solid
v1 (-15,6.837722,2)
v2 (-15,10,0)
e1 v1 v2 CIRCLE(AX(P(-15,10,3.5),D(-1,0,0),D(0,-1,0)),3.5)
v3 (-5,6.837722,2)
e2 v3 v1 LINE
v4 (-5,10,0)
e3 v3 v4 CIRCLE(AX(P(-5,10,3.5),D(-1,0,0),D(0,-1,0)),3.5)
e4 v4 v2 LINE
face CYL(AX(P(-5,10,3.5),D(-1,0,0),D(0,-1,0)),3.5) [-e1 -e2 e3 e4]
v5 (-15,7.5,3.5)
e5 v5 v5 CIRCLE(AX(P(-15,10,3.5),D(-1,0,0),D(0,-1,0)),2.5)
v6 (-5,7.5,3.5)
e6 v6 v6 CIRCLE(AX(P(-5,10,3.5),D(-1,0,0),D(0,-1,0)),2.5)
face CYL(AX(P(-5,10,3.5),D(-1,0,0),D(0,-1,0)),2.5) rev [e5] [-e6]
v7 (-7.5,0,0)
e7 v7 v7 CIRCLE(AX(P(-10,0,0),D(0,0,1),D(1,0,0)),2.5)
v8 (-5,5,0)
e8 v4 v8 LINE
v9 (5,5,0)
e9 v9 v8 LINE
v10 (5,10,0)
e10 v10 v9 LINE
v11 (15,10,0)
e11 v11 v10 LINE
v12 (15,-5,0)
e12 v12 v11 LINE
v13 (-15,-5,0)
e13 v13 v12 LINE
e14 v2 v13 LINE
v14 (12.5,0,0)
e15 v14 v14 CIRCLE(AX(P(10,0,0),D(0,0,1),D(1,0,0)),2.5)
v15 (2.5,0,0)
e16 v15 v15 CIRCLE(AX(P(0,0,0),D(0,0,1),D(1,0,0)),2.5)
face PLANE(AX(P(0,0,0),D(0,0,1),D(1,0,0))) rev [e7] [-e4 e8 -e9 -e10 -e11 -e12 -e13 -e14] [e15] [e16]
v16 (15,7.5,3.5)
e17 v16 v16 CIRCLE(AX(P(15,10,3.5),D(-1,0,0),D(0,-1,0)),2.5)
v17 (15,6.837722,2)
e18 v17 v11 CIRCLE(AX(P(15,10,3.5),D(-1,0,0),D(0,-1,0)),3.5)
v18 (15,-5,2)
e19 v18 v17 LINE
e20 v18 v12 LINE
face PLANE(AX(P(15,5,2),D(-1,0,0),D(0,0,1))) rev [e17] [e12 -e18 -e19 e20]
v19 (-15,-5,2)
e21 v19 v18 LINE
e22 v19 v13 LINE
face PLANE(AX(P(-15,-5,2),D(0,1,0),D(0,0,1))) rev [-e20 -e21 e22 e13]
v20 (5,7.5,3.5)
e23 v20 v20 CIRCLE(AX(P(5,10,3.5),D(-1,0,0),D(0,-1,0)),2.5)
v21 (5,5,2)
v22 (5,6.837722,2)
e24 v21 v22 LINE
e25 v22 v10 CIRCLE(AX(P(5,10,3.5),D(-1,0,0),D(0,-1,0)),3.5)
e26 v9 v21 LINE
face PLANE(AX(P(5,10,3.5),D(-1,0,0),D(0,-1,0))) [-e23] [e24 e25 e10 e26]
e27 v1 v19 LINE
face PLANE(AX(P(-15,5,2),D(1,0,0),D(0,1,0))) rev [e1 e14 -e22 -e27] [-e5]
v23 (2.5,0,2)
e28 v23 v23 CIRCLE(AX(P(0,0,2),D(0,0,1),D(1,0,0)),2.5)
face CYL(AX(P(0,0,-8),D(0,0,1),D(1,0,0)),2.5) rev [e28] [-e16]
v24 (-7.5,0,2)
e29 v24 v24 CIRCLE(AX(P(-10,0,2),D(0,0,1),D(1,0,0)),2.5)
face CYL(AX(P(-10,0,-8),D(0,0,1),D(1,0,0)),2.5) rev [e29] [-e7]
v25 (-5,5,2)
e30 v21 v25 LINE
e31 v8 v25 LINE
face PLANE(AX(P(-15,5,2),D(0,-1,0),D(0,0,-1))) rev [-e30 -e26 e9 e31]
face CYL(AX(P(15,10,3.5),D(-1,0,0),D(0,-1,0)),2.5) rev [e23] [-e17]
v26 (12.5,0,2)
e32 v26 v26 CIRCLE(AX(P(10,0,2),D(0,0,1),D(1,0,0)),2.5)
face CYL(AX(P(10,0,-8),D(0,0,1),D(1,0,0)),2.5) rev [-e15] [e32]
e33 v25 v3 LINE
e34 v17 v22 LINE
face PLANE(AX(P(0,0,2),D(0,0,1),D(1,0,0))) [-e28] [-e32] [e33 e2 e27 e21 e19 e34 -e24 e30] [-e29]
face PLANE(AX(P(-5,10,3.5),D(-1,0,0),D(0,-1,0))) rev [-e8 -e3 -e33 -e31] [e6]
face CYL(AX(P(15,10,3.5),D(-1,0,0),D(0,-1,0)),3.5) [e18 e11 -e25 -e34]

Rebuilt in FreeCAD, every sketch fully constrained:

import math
import FreeCAD as App
import Part
import Sketcher
from FreeCAD import Vector

doc = App.newDocument("Part")
params = doc.addObject("Spreadsheet::Sheet", "Params")
for row, (alias, value) in enumerate([
    ("sketch1_width", "30 mm"),
    ("sketch1_height", "10 mm"),
    ("pad1_length", "2 mm"),
    ("sketch2_diameter", "5 mm"),
    ("sketch2_radius", "3.5 mm"),
    ("sketch2_width", "5 mm"),
    ("sketch2_height", "2 mm"),
    ("pad2_length", "10 mm"),
    ("linearpattern_pitch", "20 mm"),
    ("sketch3_diameter", "5 mm"),
    ("pocket1_length", "10 mm"),
], start=1):
    params.set(f"A{row}", alias)
    params.set(f"B{row}", "=" + value)
    params.setAlias(f"B{row}", alias)

body = doc.addObject("PartDesign::Body", "Body")

sketch1 = body.newObject("Sketcher::SketchObject", "Sketch")
sketch1.AttachmentSupport = (doc.getObject("XY_Plane"), [""])
sketch1.MapMode = "FlatFace"
sketch1.addGeometry([
    Part.LineSegment(Vector(-15, 5, 0), Vector(-15, -5, 0)),
    Part.LineSegment(Vector(-15, -5, 0), Vector(15, -5, 0)),
    Part.LineSegment(Vector(15, -5, 0), Vector(15, 5, 0)),
    Part.LineSegment(Vector(15, 5, 0), Vector(-15, 5, 0)),
], False)
sketch1.addConstraint([
    Sketcher.Constraint("Coincident", 0, 2, 1, 1),
    Sketcher.Constraint("Coincident", 1, 2, 2, 1),
    Sketcher.Constraint("Coincident", 2, 2, 3, 1),
    Sketcher.Constraint("Coincident", 3, 2, 0, 1),
    Sketcher.Constraint("Vertical", 0),
    Sketcher.Constraint("Horizontal", 1),
    Sketcher.Constraint("Vertical", 2),
    Sketcher.Constraint("Horizontal", 3),
    Sketcher.Constraint("Symmetric", 0, 2, 2, 2, -1, 1),
    Sketcher.Constraint("DistanceX", 1, 1, 1, 2, 30.0),
    Sketcher.Constraint("DistanceY", 0, 2, 0, 1, 10.0),
])
sketch1.setExpression("Constraints[9]", "Params.sketch1_width")
sketch1.setExpression("Constraints[10]", "Params.sketch1_height")
pad1 = body.newObject("PartDesign::Pad", "Pad")
pad1.Profile = sketch1
pad1.setExpression("Length", "Params.pad1_length")

sketch2 = body.newObject("Sketcher::SketchObject", "Sketch001")
sketch2.AttachmentSupport = (doc.getObject("YZ_Plane"), [""])
sketch2.MapMode = "FlatFace"
sketch2.AttachmentOffset = App.Placement(Vector(0, 0, -15), App.Rotation())
sketch2.addGeometry([
    Part.LineSegment(Vector(10, 0, 0), Vector(5, 0, 0)),
    Part.LineSegment(Vector(5, 0, 0), Vector(5, 2, 0)),
    Part.LineSegment(Vector(5, 2, 0), Vector(6.8, 2, 0)),
    Part.ArcOfCircle(Part.Circle(Vector(10, 3.5, 0), Vector(0, 0, 1), 3.5), math.radians(-90), math.radians(205)),
    Part.Circle(Vector(10, 3.5, 0), Vector(0, 0, 1), 2.5),
], False)
sketch2.addConstraint([
    Sketcher.Constraint("Coincident", 0, 2, 1, 1),
    Sketcher.Constraint("Coincident", 1, 2, 2, 1),
    Sketcher.Constraint("Coincident", 2, 2, 3, 2),
    Sketcher.Constraint("Tangent", 3, 1, 0, 1),
    Sketcher.Constraint("Horizontal", 0),
    Sketcher.Constraint("Vertical", 1),
    Sketcher.Constraint("Horizontal", 2),
    Sketcher.Constraint("Coincident", 4, 3, 3, 3),
    Sketcher.Constraint("PointOnObject", 0, 2, -1),
    Sketcher.Constraint("Diameter", 4, 5.0),
    Sketcher.Constraint("Radius", 3, 3.5),
    Sketcher.Constraint("DistanceX", 0, 2, 0, 1, 5.0),
    Sketcher.Constraint("DistanceY", 1, 1, 1, 2, 2.0),
    Sketcher.Constraint("DistanceX", -1, 1, 3, 3, 10.0),
])
sketch2.setExpression("Constraints[9]", "Params.sketch2_diameter")
sketch2.setExpression("Constraints[10]", "Params.sketch2_radius")
sketch2.setExpression("Constraints[11]", "Params.sketch2_width")
sketch2.setExpression("Constraints[12]", "Params.sketch2_height")
pad2 = body.newObject("PartDesign::Pad", "Pad001")
pad2.Profile = sketch2
pad2.setExpression("Length", "Params.pad2_length")
doc.recompute()

linearpattern = body.newObject("PartDesign::LinearPattern", "LinearPattern")
linearpattern.Originals = [pad2]
linearpattern.Direction = (doc.getObject("X_Axis"), [""])
linearpattern.Mode = "offset"
linearpattern.setExpression("Offset", "Params.linearpattern_pitch")
linearpattern.Occurrences = 2
body.Tip = linearpattern

sketch3 = body.newObject("Sketcher::SketchObject", "Sketch002")
sketch3.AttachmentSupport = (doc.getObject("XY_Plane"), [""])
sketch3.MapMode = "FlatFace"
sketch3.AttachmentOffset = App.Placement(Vector(0, 0, 2), App.Rotation())
sketch3.addGeometry([
    Part.Circle(Vector(-10, 0, 0), Vector(0, 0, 1), 2.5),
    Part.Circle(Vector(0, 0, 0), Vector(0, 0, 1), 2.5),
    Part.Circle(Vector(10, 0, 0), Vector(0, 0, 1), 2.5),
], False)
sketch3.addConstraint([
    Sketcher.Constraint("Coincident", 1, 3, -1, 1),
    Sketcher.Constraint("Equal", 0, 1),
    Sketcher.Constraint("Equal", 1, 2),
    Sketcher.Constraint("Symmetric", 0, 3, 2, 3, -1, 1),
    Sketcher.Constraint("PointOnObject", 0, 3, -1),
    Sketcher.Constraint("Diameter", 0, 5.0),
    Sketcher.Constraint("DistanceX", 0, 3, -1, 1, 10.0),
])
sketch3.setExpression("Constraints[5]", "Params.sketch3_diameter")
pocket1 = body.newObject("PartDesign::Pocket", "Pocket")
pocket1.Profile = sketch3
pocket1.setExpression("Length", "Params.pocket1_length")

doc.recompute()
